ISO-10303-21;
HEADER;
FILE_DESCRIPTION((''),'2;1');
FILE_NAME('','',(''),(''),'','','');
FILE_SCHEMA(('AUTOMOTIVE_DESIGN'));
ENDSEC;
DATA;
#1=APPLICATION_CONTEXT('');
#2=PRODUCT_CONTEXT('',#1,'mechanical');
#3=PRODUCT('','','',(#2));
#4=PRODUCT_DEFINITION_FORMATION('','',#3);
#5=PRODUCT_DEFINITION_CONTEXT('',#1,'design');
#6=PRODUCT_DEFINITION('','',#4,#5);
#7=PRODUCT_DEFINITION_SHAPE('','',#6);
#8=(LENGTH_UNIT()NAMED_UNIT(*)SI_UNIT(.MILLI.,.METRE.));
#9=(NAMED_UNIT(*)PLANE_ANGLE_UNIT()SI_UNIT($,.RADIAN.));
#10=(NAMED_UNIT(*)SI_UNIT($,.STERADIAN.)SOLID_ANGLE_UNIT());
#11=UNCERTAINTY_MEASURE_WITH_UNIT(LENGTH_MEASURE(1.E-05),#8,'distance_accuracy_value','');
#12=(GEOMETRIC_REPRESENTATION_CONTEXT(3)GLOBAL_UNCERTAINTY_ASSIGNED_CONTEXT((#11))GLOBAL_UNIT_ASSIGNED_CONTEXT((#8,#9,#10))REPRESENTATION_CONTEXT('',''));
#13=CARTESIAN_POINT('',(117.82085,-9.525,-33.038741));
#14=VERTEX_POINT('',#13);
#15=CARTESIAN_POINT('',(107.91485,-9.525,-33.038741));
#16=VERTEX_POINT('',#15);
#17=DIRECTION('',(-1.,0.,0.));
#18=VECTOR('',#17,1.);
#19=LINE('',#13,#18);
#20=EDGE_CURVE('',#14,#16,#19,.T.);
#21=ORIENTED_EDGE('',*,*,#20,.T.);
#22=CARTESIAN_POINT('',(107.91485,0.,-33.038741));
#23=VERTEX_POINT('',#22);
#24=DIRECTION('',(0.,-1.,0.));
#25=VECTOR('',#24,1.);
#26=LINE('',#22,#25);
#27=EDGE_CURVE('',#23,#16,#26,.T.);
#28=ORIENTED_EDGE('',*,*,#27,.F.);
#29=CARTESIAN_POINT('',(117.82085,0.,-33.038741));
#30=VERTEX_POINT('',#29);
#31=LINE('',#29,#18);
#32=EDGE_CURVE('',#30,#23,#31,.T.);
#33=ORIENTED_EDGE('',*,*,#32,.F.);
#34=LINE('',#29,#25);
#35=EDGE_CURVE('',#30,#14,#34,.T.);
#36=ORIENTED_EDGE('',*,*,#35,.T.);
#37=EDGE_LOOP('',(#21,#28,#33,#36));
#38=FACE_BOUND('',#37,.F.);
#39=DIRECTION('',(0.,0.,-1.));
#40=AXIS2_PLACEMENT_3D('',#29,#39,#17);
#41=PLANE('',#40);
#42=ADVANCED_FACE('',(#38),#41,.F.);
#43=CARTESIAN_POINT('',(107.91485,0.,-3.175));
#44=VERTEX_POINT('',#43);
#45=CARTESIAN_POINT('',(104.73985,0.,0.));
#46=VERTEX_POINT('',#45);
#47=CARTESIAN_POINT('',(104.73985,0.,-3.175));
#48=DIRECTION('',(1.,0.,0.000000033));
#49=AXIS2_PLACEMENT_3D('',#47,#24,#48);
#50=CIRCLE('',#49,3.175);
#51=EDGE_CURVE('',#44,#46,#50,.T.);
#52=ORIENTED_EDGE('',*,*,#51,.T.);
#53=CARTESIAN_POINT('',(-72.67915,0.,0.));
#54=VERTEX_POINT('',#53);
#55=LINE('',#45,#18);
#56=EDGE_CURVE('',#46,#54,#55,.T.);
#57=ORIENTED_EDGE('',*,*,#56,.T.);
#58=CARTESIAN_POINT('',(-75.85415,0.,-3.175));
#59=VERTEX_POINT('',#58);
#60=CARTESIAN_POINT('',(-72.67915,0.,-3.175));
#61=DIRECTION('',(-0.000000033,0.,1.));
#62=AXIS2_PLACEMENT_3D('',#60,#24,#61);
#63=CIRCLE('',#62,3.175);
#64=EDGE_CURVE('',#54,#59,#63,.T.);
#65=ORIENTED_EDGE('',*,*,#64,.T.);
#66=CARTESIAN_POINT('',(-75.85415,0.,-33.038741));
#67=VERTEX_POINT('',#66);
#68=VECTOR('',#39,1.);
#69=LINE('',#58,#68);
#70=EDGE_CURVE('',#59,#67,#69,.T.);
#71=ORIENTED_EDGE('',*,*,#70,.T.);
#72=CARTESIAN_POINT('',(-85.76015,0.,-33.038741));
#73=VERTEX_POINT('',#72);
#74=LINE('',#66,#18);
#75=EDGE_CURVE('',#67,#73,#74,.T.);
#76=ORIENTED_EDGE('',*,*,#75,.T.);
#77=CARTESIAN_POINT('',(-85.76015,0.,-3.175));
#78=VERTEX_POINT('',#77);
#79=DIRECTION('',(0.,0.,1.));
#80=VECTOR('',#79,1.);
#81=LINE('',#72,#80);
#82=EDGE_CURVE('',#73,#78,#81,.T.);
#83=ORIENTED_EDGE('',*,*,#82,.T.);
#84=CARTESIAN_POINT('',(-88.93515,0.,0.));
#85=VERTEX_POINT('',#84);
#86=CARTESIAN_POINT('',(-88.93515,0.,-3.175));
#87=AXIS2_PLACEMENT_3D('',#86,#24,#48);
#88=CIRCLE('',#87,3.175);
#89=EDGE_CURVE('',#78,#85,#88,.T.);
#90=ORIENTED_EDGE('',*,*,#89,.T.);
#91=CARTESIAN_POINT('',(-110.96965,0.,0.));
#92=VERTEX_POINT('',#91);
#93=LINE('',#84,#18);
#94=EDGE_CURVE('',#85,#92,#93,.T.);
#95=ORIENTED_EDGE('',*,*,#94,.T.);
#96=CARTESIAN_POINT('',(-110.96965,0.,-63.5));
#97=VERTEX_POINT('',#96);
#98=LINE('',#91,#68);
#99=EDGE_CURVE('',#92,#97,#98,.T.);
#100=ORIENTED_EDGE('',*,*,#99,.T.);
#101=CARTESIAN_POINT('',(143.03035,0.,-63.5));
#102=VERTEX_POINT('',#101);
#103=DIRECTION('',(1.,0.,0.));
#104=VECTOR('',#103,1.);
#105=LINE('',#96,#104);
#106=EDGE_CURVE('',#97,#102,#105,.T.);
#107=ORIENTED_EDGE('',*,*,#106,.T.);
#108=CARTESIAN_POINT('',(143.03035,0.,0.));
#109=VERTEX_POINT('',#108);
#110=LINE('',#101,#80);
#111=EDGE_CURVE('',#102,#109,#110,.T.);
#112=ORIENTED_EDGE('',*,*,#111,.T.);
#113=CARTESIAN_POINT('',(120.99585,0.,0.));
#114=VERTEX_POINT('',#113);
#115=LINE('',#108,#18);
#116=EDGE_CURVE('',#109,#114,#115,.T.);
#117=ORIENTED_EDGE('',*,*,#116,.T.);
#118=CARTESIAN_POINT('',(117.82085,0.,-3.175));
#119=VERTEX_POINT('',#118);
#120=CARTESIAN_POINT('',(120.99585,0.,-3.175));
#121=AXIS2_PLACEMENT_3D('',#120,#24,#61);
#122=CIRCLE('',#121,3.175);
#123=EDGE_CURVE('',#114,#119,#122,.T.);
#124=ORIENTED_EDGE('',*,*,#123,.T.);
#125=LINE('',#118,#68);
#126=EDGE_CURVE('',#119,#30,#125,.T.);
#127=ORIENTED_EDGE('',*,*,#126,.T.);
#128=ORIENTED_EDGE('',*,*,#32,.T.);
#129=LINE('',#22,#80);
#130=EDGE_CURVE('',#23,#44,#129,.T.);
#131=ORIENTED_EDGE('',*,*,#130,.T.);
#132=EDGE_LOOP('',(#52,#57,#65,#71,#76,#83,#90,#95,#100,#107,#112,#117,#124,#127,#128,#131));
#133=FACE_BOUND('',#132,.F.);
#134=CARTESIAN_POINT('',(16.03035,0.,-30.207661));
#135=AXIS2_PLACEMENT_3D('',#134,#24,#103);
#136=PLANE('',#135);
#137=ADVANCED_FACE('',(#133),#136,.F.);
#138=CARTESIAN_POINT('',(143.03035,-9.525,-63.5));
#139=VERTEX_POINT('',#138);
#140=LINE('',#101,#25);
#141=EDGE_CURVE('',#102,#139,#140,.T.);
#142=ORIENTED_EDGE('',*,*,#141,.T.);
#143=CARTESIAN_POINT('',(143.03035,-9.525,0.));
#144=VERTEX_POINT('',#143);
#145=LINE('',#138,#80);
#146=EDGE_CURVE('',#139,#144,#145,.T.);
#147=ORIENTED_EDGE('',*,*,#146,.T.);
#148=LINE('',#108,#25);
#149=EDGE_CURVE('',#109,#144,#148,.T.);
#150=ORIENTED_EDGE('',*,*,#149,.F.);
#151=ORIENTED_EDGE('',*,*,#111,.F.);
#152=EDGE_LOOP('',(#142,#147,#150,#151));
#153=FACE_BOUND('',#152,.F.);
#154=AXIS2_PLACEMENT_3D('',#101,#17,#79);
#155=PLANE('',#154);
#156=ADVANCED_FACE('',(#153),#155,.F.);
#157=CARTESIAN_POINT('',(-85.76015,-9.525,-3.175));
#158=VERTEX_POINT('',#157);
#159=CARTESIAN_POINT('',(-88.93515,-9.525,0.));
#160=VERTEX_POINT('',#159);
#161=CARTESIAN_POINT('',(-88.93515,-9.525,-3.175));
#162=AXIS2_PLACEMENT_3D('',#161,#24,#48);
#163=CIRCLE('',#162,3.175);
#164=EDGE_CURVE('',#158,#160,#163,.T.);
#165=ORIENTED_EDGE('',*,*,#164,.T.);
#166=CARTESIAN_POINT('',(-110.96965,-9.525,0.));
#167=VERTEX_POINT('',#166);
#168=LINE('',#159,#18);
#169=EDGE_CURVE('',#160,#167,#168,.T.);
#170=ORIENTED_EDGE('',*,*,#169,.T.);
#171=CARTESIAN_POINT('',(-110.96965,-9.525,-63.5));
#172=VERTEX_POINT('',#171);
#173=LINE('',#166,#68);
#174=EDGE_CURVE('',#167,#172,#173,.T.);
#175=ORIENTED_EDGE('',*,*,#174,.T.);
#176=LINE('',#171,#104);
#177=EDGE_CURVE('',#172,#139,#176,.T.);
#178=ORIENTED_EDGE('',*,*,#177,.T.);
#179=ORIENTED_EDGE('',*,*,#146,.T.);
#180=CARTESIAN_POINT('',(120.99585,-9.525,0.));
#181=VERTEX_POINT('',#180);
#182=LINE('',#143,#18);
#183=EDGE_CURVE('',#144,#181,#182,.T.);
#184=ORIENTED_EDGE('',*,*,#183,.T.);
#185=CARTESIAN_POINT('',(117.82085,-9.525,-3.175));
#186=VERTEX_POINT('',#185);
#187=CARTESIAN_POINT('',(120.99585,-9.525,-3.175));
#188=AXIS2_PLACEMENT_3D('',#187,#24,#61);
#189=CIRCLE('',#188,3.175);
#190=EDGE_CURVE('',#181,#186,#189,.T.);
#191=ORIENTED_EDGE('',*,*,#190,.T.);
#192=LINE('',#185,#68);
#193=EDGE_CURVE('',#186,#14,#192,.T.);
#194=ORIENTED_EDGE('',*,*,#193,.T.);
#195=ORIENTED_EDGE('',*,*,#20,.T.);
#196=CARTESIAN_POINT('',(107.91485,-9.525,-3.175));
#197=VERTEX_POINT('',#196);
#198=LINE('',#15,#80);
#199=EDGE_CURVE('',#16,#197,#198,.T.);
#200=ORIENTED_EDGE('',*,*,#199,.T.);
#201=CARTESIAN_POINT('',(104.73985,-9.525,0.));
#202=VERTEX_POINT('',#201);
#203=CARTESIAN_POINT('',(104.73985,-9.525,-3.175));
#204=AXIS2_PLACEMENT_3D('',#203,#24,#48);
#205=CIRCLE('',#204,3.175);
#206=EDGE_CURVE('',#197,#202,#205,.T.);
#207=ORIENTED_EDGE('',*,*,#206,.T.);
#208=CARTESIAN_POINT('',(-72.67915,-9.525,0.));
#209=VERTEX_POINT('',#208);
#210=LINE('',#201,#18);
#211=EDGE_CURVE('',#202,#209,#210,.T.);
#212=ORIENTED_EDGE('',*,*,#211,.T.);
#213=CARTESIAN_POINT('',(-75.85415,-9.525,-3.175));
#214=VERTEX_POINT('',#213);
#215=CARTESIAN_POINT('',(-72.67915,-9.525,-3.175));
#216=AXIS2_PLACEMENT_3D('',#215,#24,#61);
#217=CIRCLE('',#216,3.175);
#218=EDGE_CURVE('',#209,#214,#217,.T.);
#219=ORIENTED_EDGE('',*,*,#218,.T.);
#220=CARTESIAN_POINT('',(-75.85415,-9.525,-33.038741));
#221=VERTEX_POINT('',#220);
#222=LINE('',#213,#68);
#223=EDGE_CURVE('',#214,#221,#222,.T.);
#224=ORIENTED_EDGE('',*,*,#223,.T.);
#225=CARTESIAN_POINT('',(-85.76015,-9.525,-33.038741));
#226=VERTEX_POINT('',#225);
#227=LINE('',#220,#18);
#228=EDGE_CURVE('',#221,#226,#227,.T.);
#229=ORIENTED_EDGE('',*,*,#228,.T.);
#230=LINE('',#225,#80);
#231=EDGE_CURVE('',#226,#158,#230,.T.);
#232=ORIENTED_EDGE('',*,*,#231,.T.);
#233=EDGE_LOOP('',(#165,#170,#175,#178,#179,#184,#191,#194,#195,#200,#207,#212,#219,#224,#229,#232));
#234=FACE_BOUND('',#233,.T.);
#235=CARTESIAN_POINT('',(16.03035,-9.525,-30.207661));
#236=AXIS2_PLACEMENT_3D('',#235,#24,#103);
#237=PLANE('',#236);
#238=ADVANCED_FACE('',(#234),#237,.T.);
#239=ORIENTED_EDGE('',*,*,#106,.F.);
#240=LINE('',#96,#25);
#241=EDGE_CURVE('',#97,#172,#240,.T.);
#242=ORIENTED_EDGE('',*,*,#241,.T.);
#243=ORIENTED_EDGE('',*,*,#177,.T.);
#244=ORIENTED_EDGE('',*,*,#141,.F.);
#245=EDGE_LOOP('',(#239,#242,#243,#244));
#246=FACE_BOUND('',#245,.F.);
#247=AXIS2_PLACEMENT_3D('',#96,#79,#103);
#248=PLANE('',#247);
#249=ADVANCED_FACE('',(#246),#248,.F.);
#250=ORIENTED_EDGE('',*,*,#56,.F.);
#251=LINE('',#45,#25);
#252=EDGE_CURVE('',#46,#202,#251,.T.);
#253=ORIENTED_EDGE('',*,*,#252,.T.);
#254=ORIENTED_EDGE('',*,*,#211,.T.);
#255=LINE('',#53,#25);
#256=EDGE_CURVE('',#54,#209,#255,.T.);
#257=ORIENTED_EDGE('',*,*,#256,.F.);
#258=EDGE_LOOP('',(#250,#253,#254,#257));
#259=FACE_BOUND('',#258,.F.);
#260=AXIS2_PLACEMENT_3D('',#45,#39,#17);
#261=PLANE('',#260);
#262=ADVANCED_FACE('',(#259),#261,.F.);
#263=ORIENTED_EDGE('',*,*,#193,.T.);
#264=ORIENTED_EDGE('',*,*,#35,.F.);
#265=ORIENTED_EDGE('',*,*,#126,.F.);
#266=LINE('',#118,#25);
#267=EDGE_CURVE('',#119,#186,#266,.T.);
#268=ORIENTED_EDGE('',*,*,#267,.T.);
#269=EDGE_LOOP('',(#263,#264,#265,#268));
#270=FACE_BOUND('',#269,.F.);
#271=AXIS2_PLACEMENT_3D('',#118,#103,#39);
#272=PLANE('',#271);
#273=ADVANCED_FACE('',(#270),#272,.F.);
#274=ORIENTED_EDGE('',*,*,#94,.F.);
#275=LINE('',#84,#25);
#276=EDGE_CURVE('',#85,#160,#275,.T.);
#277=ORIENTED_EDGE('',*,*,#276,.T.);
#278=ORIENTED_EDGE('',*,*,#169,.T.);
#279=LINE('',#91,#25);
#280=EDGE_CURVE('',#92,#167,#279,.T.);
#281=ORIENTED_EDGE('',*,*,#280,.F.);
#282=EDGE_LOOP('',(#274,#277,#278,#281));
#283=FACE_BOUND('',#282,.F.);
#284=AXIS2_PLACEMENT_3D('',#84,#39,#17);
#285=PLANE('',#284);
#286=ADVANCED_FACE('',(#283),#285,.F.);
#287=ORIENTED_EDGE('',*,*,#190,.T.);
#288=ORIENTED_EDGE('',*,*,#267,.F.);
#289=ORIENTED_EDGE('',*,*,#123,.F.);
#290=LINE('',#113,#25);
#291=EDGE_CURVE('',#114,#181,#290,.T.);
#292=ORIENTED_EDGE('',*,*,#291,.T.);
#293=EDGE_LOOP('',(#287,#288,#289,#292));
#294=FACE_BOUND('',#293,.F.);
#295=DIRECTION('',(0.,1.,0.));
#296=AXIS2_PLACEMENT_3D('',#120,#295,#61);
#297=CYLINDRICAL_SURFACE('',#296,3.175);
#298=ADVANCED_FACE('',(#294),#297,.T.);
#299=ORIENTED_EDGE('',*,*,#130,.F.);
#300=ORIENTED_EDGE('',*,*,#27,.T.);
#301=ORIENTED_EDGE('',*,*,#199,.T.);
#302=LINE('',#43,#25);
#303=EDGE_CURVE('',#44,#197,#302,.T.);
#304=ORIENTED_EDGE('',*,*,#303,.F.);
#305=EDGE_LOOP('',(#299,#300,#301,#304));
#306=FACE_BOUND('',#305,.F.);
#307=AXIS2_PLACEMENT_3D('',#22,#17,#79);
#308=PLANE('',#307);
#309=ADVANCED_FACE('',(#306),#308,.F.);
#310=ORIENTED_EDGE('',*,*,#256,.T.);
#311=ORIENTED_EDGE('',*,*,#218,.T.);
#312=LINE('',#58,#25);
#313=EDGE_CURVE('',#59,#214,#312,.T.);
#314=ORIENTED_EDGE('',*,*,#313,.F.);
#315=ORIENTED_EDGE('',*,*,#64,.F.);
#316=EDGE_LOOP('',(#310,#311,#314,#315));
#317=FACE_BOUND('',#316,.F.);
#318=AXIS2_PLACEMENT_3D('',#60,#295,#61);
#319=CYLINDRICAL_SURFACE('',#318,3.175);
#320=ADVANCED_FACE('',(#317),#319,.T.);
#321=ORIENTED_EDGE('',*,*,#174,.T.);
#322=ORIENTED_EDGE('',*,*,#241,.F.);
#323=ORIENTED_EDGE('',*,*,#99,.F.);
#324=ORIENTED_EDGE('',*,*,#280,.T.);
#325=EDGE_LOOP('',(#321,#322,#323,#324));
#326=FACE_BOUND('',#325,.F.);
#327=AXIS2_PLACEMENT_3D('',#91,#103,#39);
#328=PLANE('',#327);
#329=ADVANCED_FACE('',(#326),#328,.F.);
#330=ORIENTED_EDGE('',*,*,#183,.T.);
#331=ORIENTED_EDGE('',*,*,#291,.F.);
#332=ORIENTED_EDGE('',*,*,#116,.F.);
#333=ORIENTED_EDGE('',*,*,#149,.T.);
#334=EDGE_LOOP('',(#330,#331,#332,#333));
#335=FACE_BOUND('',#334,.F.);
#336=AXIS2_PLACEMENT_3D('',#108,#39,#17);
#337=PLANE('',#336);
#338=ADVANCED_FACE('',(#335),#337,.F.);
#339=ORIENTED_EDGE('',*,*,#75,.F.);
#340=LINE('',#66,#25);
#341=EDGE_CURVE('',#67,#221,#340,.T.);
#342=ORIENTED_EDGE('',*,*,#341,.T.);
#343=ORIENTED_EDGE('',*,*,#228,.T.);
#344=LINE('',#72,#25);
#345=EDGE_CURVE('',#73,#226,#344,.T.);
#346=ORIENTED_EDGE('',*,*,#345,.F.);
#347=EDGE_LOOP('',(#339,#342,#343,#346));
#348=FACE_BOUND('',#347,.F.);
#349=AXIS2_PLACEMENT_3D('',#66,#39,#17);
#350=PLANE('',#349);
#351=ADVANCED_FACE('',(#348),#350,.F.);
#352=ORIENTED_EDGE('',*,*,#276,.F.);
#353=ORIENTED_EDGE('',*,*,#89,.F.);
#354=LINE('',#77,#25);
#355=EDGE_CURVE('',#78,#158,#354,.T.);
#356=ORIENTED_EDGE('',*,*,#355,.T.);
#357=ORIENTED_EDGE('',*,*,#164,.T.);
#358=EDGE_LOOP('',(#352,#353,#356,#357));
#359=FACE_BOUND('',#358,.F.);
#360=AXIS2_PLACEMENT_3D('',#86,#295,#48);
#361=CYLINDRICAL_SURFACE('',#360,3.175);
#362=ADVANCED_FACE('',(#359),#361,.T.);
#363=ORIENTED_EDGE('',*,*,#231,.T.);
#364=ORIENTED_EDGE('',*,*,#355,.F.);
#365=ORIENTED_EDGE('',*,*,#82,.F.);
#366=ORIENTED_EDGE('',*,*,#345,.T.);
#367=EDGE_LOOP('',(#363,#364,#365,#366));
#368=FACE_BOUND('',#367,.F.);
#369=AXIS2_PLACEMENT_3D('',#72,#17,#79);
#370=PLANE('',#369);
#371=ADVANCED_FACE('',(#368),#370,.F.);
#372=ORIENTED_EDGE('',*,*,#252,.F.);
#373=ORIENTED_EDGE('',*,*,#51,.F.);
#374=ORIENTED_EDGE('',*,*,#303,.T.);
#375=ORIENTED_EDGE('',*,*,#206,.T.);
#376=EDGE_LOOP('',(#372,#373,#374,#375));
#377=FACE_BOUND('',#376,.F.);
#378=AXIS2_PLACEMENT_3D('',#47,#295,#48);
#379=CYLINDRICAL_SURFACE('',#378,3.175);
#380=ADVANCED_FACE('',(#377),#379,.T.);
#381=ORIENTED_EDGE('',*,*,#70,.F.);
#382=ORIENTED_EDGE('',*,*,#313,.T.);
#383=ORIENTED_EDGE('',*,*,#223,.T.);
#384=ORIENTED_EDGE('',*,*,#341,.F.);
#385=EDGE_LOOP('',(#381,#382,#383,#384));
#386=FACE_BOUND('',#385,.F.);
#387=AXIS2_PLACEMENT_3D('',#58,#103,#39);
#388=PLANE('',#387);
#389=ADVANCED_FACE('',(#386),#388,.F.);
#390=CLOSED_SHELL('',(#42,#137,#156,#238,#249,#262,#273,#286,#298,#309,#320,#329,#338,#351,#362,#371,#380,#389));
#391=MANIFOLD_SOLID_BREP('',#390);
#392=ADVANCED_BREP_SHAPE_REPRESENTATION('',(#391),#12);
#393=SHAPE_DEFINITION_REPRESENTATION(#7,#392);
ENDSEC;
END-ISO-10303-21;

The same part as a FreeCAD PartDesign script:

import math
import FreeCAD as App
import Part
import Sketcher
Q = App.Units.Quantity

doc = App.newDocument("Part")
body = doc.addObject("PartDesign::Body", "Body")

sketch1 = body.newObject("Sketcher::SketchObject", "Sketch")
sketch1.AttachmentSupport = (doc.getObject("XZ_Plane"), [""])
sketch1.MapMode = "FlatFace"
sketch1.addGeometry([
    Part.LineSegment(App.Vector(-88.9, 0, 0), App.Vector(-111, 0, 0)),
    Part.LineSegment(App.Vector(-111, 0, 0), App.Vector(-111, -63.5, 0)),
    Part.LineSegment(App.Vector(-111, -63.5, 0), App.Vector(143, -63.5, 0)),
    Part.LineSegment(App.Vector(143, -63.5, 0), App.Vector(143, 0, 0)),
    Part.LineSegment(App.Vector(143, 0, 0), App.Vector(121, 0, 0)),
    Part.ArcOfCircle(Part.Circle(App.Vector(121, -3.2, 0), App.Vector(0, 0, 1), 3.2), math.radians(90), math.radians(180)),
    Part.LineSegment(App.Vector(117.8, -3.2, 0), App.Vector(117.8, -33, 0)),
    Part.LineSegment(App.Vector(117.8, -33, 0), App.Vector(107.9, -33, 0)),
    Part.LineSegment(App.Vector(107.9, -33, 0), App.Vector(107.9, -3.2, 0)),
    Part.ArcOfCircle(Part.Circle(App.Vector(104.7, -3.2, 0), App.Vector(0, 0, 1), 3.2), math.radians(0), math.radians(90)),
    Part.LineSegment(App.Vector(104.7, 0, 0), App.Vector(-72.7, 0, 0)),
    Part.ArcOfCircle(Part.Circle(App.Vector(-72.7, -3.2, 0), App.Vector(0, 0, 1), 3.2), math.radians(90), math.radians(180)),
    Part.LineSegment(App.Vector(-75.9, -3.2, 0), App.Vector(-75.9, -33, 0)),
    Part.LineSegment(App.Vector(-75.9, -33, 0), App.Vector(-85.8, -33, 0)),
    Part.LineSegment(App.Vector(-85.8, -33, 0), App.Vector(-85.8, -3.2, 0)),
    Part.ArcOfCircle(Part.Circle(App.Vector(-88.9, -3.2, 0), App.Vector(0, 0, 1), 3.2), math.radians(0), math.radians(90)),
], False)
sketch1.addConstraint([
    Sketcher.Constraint("Coincident", 0, 2, 1, 1),
    Sketcher.Constraint("Coincident", 1, 2, 2, 1),
    Sketcher.Constraint("Coincident", 2, 2, 3, 1),
    Sketcher.Constraint("Coincident", 3, 2, 4, 1),
    Sketcher.Constraint("Tangent", 4, 2, 5, 1),
    Sketcher.Constraint("Tangent", 5, 2, 6, 1),
    Sketcher.Constraint("Coincident", 6, 2, 7, 1),
    Sketcher.Constraint("Coincident", 7, 2, 8, 1),
    Sketcher.Constraint("Tangent", 8, 2, 9, 1),
    Sketcher.Constraint("Tangent", 9, 2, 10, 1),
    Sketcher.Constraint("Tangent", 10, 2, 11, 1),
    Sketcher.Constraint("Tangent", 11, 2, 12, 1),
    Sketcher.Constraint("Coincident", 12, 2, 13, 1),
    Sketcher.Constraint("Coincident", 13, 2, 14, 1),
    Sketcher.Constraint("Tangent", 14, 2, 15, 1),
    Sketcher.Constraint("Tangent", 15, 2, 0, 1),
    Sketcher.Constraint("Horizontal", 0),
    Sketcher.Constraint("Vertical", 1),
    Sketcher.Constraint("Horizontal", 2),
    Sketcher.Constraint("Vertical", 3),
    Sketcher.Constraint("Horizontal", 4),
    Sketcher.Constraint("Vertical", 6),
    Sketcher.Constraint("Horizontal", 7),
    Sketcher.Constraint("Vertical", 8),
    Sketcher.Constraint("Horizontal", 10),
    Sketcher.Constraint("Vertical", 12),
    Sketcher.Constraint("Horizontal", 13),
    Sketcher.Constraint("Vertical", 14),
    Sketcher.Constraint("Equal", 5, 9),
    Sketcher.Constraint("Equal", 9, 11),
    Sketcher.Constraint("Equal", 11, 15),
    Sketcher.Constraint("PointOnObject", 0, 2, -1),
    Sketcher.Constraint("PointOnObject", 3, 2, -1),
    Sketcher.Constraint("PointOnObject", 9, 2, -1),
    Sketcher.Constraint("Horizontal", 7, 2, 12, 2),
    Sketcher.Constraint("Equal", 0, 4),
    Sketcher.Constraint("Equal", 7, 13),
    Sketcher.Constraint("DistanceX", 2, 1, 2, 2, Q("10 in")),
    Sketcher.Constraint("DistanceY", 1, 2, 1, 1, Q("2.5 in")),
    Sketcher.Constraint("Radius", 5, Q("0.125 in")),
    Sketcher.Constraint("DistanceX", 7, 2, 7, 1, Q("0.39 in")),
    Sketcher.Constraint("DistanceX", 10, 2, 10, 1, Q("6.985 in")),
    Sketcher.Constraint("DistanceY", 6, 2, 6, 1, Q("29.863741 mm")),
    Sketcher.Constraint("DistanceX", -1, 1, 5, 3, Q("120.99585 mm")),
])
pad1 = body.newObject("PartDesign::Pad", "Pad")
pad1.Profile = sketch1
pad1.Length = Q("0.375 in")

doc.recompute()
